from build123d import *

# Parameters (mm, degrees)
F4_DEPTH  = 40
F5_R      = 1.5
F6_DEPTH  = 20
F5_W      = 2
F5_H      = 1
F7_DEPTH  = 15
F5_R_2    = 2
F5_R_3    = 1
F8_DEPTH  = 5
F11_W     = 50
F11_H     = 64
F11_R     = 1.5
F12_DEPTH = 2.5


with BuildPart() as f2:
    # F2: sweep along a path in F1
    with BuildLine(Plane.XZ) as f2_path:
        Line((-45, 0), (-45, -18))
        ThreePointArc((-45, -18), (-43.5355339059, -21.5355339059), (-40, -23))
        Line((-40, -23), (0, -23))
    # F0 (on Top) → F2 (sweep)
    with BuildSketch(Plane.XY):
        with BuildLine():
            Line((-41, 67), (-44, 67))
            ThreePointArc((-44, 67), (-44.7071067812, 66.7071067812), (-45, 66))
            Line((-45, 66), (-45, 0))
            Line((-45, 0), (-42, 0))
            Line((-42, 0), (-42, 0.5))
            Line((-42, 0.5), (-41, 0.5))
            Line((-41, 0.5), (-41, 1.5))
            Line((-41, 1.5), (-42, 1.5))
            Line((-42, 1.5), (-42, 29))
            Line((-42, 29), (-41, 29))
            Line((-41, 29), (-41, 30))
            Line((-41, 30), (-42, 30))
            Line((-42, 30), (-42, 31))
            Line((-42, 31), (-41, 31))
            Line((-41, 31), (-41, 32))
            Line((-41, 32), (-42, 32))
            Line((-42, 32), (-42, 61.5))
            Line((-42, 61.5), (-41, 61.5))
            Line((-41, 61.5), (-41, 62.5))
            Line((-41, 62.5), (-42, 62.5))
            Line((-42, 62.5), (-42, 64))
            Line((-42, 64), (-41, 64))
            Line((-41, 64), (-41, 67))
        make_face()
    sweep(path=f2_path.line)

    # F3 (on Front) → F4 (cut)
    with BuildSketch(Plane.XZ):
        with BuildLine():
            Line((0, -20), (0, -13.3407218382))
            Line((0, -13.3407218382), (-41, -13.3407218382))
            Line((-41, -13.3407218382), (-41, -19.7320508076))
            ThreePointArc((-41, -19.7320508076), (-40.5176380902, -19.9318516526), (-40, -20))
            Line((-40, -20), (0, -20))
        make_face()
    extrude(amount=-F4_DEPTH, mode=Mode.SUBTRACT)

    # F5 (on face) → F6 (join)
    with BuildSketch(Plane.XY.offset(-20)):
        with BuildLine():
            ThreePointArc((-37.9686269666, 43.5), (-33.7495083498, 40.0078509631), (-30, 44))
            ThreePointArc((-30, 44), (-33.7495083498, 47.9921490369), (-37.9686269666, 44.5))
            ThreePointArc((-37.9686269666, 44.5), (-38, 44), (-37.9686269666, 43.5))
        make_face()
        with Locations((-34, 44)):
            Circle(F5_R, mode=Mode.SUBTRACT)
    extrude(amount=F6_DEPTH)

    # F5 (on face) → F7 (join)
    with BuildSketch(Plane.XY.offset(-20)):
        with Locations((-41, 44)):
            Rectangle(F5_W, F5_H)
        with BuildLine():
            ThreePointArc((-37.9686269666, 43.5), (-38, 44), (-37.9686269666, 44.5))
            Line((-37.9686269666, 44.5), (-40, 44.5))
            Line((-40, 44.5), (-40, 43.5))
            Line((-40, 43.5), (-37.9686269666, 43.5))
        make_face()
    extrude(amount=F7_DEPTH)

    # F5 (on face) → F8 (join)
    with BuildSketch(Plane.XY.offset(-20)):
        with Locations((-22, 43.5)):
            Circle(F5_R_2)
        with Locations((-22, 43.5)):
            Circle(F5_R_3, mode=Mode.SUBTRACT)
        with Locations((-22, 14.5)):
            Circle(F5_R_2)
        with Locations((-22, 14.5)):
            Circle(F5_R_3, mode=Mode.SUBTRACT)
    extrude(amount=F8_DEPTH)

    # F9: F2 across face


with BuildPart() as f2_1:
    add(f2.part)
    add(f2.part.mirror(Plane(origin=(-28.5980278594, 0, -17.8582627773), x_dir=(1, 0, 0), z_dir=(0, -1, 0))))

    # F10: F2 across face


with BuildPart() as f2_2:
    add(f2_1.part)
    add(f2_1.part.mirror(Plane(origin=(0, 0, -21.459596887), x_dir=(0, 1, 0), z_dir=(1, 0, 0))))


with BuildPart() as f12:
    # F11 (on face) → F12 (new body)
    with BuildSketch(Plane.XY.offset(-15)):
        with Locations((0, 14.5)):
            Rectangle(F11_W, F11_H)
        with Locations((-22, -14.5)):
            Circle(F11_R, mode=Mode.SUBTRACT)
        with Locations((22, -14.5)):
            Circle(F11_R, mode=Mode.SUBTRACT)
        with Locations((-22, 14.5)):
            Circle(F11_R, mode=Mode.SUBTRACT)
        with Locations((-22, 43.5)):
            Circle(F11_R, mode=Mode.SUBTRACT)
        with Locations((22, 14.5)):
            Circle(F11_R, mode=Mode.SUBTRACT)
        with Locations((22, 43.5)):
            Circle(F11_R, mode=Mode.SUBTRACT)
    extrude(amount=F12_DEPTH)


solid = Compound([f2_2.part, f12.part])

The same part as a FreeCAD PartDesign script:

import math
import FreeCAD as App
import Part
import Sketcher

V = App.Vector

doc = App.newDocument("Part")
body = doc.addObject("PartDesign::Body", "Body")

# Sketch on XY plane
sketch1 = body.newObject("Sketcher::SketchObject", "Sketch")
sketch1.AttachmentSupport = (doc.getObject("XY_Plane"), [""])
sketch1.MapMode = "FlatFace"
sketch1.addGeometry([
    Part.LineSegment(V(-41, 67, 0), V(-44, 67, 0)),  # 0
    Part.ArcOfCircle(Part.Circle(V(-44, 66, 0), V(0, 0, 1), 1), math.radians(90), math.radians(180)),  # 1
    Part.LineSegment(V(-45, 66, 0), V(-45, 0, 0)),  # 2
    Part.LineSegment(V(-45, 0, 0), V(-42, 0, 0)),  # 3
    Part.LineSegment(V(-42, 0, 0), V(-42, 0.5, 0)),  # 4
    Part.LineSegment(V(-42, 0.5, 0), V(-41, 0.5, 0)),  # 5
    Part.LineSegment(V(-41, 0.5, 0), V(-41, 1.5, 0)),  # 6
    Part.LineSegment(V(-41, 1.5, 0), V(-42, 1.5, 0)),  # 7
    Part.LineSegment(V(-42, 1.5, 0), V(-42, 29, 0)),  # 8
    Part.LineSegment(V(-42, 29, 0), V(-41, 29, 0)),  # 9
    Part.LineSegment(V(-41, 29, 0), V(-41, 30, 0)),  # 10
    Part.LineSegment(V(-41, 30, 0), V(-42, 30, 0)),  # 11
    Part.LineSegment(V(-42, 30, 0), V(-42, 31, 0)),  # 12
    Part.LineSegment(V(-42, 31, 0), V(-41, 31, 0)),  # 13
    Part.LineSegment(V(-41, 31, 0), V(-41, 32, 0)),  # 14
    Part.LineSegment(V(-41, 32, 0), V(-42, 32, 0)),  # 15
    Part.LineSegment(V(-42, 32, 0), V(-42, 61.5, 0)),  # 16
    Part.LineSegment(V(-42, 61.5, 0), V(-41, 61.5, 0)),  # 17
    Part.LineSegment(V(-41, 61.5, 0), V(-41, 62.5, 0)),  # 18
    Part.LineSegment(V(-41, 62.5, 0), V(-42, 62.5, 0)),  # 19
    Part.LineSegment(V(-42, 62.5, 0), V(-42, 64, 0)),  # 20
    Part.LineSegment(V(-42, 64, 0), V(-41, 64, 0)),  # 21
    Part.LineSegment(V(-41, 64, 0), V(-41, 67, 0)),  # 22
], False)
sketch1.addConstraint([
    Sketcher.Constraint("Tangent", 0, 2, 1, 1),
    Sketcher.Constraint("Tangent", 1, 2, 2, 1),
    Sketcher.Constraint("Coincident", 2, 2, 3, 1),
    Sketcher.Constraint("Coincident", 3, 2, 4, 1),
    Sketcher.Constraint("Coincident", 4, 2, 5, 1),
    Sketcher.Constraint("Coincident", 5, 2, 6, 1),
    Sketcher.Constraint("Coincident", 6, 2, 7, 1),
    Sketcher.Constraint("Coincident", 7, 2, 8, 1),
    Sketcher.Constraint("Coincident", 8, 2, 9, 1),
    Sketcher.Constraint("Coincident", 9, 2, 10, 1),
    Sketcher.Constraint("Coincident", 10, 2, 11, 1),
    Sketcher.Constraint("Coincident", 11, 2, 12, 1),
    Sketcher.Constraint("Coincident", 12, 2, 13, 1),
    Sketcher.Constraint("Coincident", 13, 2, 14, 1),
    Sketcher.Constraint("Coincident", 14, 2, 15, 1),
    Sketcher.Constraint("Coincident", 15, 2, 16, 1),
    Sketcher.Constraint("Coincident", 16, 2, 17, 1),
    Sketcher.Constraint("Coincident", 17, 2, 18, 1),
    Sketcher.Constraint("Coincident", 18, 2, 19, 1),
    Sketcher.Constraint("Coincident", 19, 2, 20, 1),
    Sketcher.Constraint("Coincident", 20, 2, 21, 1),
    Sketcher.Constraint("Coincident", 21, 2, 22, 1),
    Sketcher.Constraint("Coincident", 22, 2, 0, 1),
    Sketcher.Constraint("Horizontal", 0),
    Sketcher.Constraint("Vertical", 2),
    Sketcher.Constraint("Horizontal", 3),
    Sketcher.Constraint("Vertical", 4),
    Sketcher.Constraint("Horizontal", 5),
    Sketcher.Constraint("Vertical", 6),
    Sketcher.Constraint("Horizontal", 7),
    Sketcher.Constraint("Vertical", 8),
    Sketcher.Constraint("Horizontal", 9),
    Sketcher.Constraint("Vertical", 10),
    Sketcher.Constraint("Horizontal", 11),
    Sketcher.Constraint("Vertical", 12),
    Sketcher.Constraint("Horizontal", 13),
    Sketcher.Constraint("Vertical", 14),
    Sketcher.Constraint("Horizontal", 15),
    Sketcher.Constraint("Vertical", 16),
    Sketcher.Constraint("Horizontal", 17),
    Sketcher.Constraint("Vertical", 18),
    Sketcher.Constraint("Horizontal", 19),
    Sketcher.Constraint("Vertical", 20),
    Sketcher.Constraint("Horizontal", 21),
    Sketcher.Constraint("Vertical", 22),
    Sketcher.Constraint("PointOnObject", 2, 2, -1),
    Sketcher.Constraint("Vertical", 4, 2, 7, 2),
    Sketcher.Constraint("Vertical", 6, 2, 9, 2),
    Sketcher.Constraint("Vertical", 8, 2, 11, 2),
    Sketcher.Constraint("Vertical", 10, 2, 13, 2),
    Sketcher.Constraint("Vertical", 12, 2, 15, 2),
    Sketcher.Constraint("Vertical", 14, 2, 17, 2),
    Sketcher.Constraint("Vertical", 16, 2, 19, 2),
    Sketcher.Constraint("Vertical", 18, 2, 21, 2),
    Sketcher.Constraint("Equal", 0, 3),
    Sketcher.Constraint("Equal", 21, 6),
    Sketcher.Constraint("Equal", 6, 10),
    Sketcher.Constraint("Equal", 10, 12),
    Sketcher.Constraint("Equal", 12, 14),
    Sketcher.Constraint("Equal", 14, 18),
    Sketcher.Constraint("Equal", 3, 22),
    Sketcher.Constraint("Radius", 1, 1.0),
    Sketcher.Constraint("DistanceX", 0, 2, 0, 1, 3.0),
    Sketcher.Constraint("DistanceY", 2, 2, 2, 1, 66.0),
    Sketcher.Constraint("DistanceY", 4, 1, 4, 2, 0.5),
    Sketcher.Constraint("DistanceY", 8, 1, 8, 2, 27.5),
    Sketcher.Constraint("DistanceY", 16, 1, 16, 2, 29.5),
    Sketcher.Constraint("DistanceX", 1, 3, -1, 1, 44.0),
])

# Sketch on XZ plane
sketch2 = body.newObject("Sketcher::SketchObject", "Sketch001")
sketch2.AttachmentSupport = (doc.getObject("XZ_Plane"), [""])
sketch2.MapMode = "FlatFace"
sketch2.addGeometry([
    Part.LineSegment(V(-45, 0, 0), V(-45, -18, 0)),
    Part.ArcOfCircle(Part.Circle(V(-40, -18, 0), V(0, 0, 1), 5), math.radians(180), math.radians(270)),
    Part.LineSegment(V(-40, -23, 0), V(0, -23, 0)),
], False)
sketch2.addConstraint([
    Sketcher.Constraint("Tangent", 0, 2, 1, 1),
    Sketcher.Constraint("Tangent", 1, 2, 2, 1),
    Sketcher.Constraint("Vertical", 0),
    Sketcher.Constraint("Horizontal", 2),
    Sketcher.Constraint("PointOnObject", 0, 1, -1),
    Sketcher.Constraint("PointOnObject", 2, 2, -2),
    Sketcher.Constraint("Radius", 1, 5.0),
    Sketcher.Constraint("DistanceX", 2, 1, 2, 2, 40.0),
    Sketcher.Constraint("DistanceY", 0, 2, 0, 1, 18.0),
])
doc.recompute()

additivepipe = body.newObject("PartDesign::AdditivePipe", "AdditivePipe")
additivepipe.Profile = sketch1
additivepipe.Spine = (sketch2, ["Edge1", "Edge2", "Edge3"])

# Sketch on XZ plane
sketch3 = body.newObject("Sketcher::SketchObject", "Sketch002")
sketch3.AttachmentSupport = (doc.getObject("XZ_Plane"), [""])
sketch3.MapMode = "FlatFace"
sketch3.addGeometry([
    Part.LineSegment(V(0, -20, 0), V(0, -13.3, 0)),  # 0
    Part.LineSegment(V(0, -13.3, 0), V(-41, -13.3, 0)),  # 1
    Part.LineSegment(V(-41, -13.3, 0), V(-41, -19.7, 0)),  # 2
    Part.ArcOfCircle(Part.Circle(V(-40, -18, 0), V(0, 0, 1), 2), math.radians(-120), math.radians(-90)),  # 3
    Part.LineSegment(V(-40, -20, 0), V(0, -20, 0)),  # 4
], False)
sketch3.addConstraint([
    Sketcher.Constraint("Coincident", 0, 2, 1, 1),
    Sketcher.Constraint("Coincident", 1, 2, 2, 1),
    Sketcher.Constraint("Coincident", 2, 2, 3, 1),
    Sketcher.Constraint("Tangent", 3, 2, 4, 1),
    Sketcher.Constraint("Coincident", 4, 2, 0, 1),
    Sketcher.Constraint("Vertical", 0),
    Sketcher.Constraint("Horizontal", 1),
    Sketcher.Constraint("Vertical", 2),
    Sketcher.Constraint("Horizontal", 4),
    Sketcher.Constraint("PointOnObject", 0, 2, -2),
    Sketcher.Constraint("Radius", 3, 2.0),
    Sketcher.Constraint("DistanceX", 1, 2, 1, 1, 41.0),
    Sketcher.Constraint("DistanceX", 4, 1, 4, 2, 40.0),
    Sketcher.Constraint("DistanceY", 3, 3, -1, 1, 18.0),
    Sketcher.Constraint("DistanceY", 0, 1, 0, 2, 6.659278),
])
pocket1 = body.newObject("PartDesign::Pocket", "Pocket")
pocket1.Profile = sketch3
pocket1.Length = 40

# Sketch on XY plane
sketch4 = body.newObject("Sketcher::SketchObject", "Sketch003")
sketch4.AttachmentSupport = (doc.getObject("XY_Plane"), [""])
sketch4.MapMode = "FlatFace"
sketch4.AttachmentOffset = App.Placement(V(0, 0, -20), App.Rotation())
sketch4.addGeometry([
    Part.ArcOfCircle(Part.Circle(V(-34, 44, 0), V(0, 0, 1), 4), math.radians(-173), math.radians(0)),
    Part.ArcOfCircle(Part.Circle(V(-34, 44, 0), V(0, 0, 1), 4), math.radians(0), math.radians(173)),
    Part.ArcOfCircle(Part.Circle(V(-34, 44, 0), V(0, 0, 1), 4), math.radians(172.82), math.radians(187.18)),
    Part.Circle(V(-34, 44, 0), V(0, 0, 1), 1.5),
], False)
sketch4.addConstraint([
    Sketcher.Constraint("Tangent", 0, 2, 1, 1),
    Sketcher.Constraint("Tangent", 1, 2, 2, 1),
    Sketcher.Constraint("Tangent", 2, 2, 0, 1),
    Sketcher.Constraint("Coincident", 3, 3, 0, 3),
    Sketcher.Constraint("Horizontal", 3, 3, 0, 2),
    Sketcher.Constraint("Vertical", 1, 2, 2, 2),
    Sketcher.Constraint("Diameter", 3, 3.0),
    Sketcher.Constraint("Radius", 0, 4.0),
    Sketcher.Constraint("DistanceX", 0, 3, -1, 1, 34.0),
    Sketcher.Constraint("DistanceY", -1, 1, 0, 3, 44.0),
    Sketcher.Constraint("DistanceY", 2, 2, 1, 2, 1.0),
])
pad1 = body.newObject("PartDesign::Pad", "Pad")
pad1.Profile = sketch4
pad1.Length = 20

# Sketch on XY plane
sketch5 = body.newObject("Sketcher::SketchObject", "Sketch004")
sketch5.AttachmentSupport = (doc.getObject("XY_Plane"), [""])
sketch5.MapMode = "FlatFace"
sketch5.AttachmentOffset = App.Placement(V(0, 0, -20), App.Rotation())
sketch5.addGeometry([
    Part.LineSegment(V(-42, 44.5, 0), V(-42, 43.5, 0)),
    Part.LineSegment(V(-42, 43.5, 0), V(-38, 43.5, 0)),
    Part.ArcOfCircle(Part.Circle(V(-34, 44, 0), V(0, 0, 1), 4), math.radians(172.82), math.radians(187.18)),
    Part.LineSegment(V(-38, 44.5, 0), V(-42, 44.5, 0)),
], False)
sketch5.addConstraint([
    Sketcher.Constraint("Coincident", 0, 2, 1, 1),
    Sketcher.Constraint("Coincident", 1, 2, 2, 2),
    Sketcher.Constraint("Coincident", 2, 1, 3, 1),
    Sketcher.Constraint("Coincident", 3, 2, 0, 1),
    Sketcher.Constraint("Vertical", 0),
    Sketcher.Constraint("Horizontal", 1),
    Sketcher.Constraint("Horizontal", 3),
    Sketcher.Constraint("Vertical", 1, 2, 2, 1),
    Sketcher.Constraint("Radius", 2, 4.0),
    Sketcher.Constraint("DistanceY", 0, 2, 0, 1, 1.0),
    Sketcher.Constraint("DistanceX", 2, 3, -1, 1, 34.0),
    Sketcher.Constraint("DistanceY", -1, 1, 2, 3, 44.0),
    Sketcher.Constraint("DistanceX", 0, 2, -1, 1, 42.0),
])
pad2 = body.newObject("PartDesign::Pad", "Pad001")
pad2.Profile = sketch5
pad2.Length = 15

# Sketch on XY plane
sketch6 = body.newObject("Sketcher::SketchObject", "Sketch005")
sketch6.AttachmentSupport = (doc.getObject("XY_Plane"), [""])
sketch6.MapMode = "FlatFace"
sketch6.AttachmentOffset = App.Placement(V(0, 0, -20), App.Rotation())
sketch6.addGeometry([
    Part.Circle(V(-22, 43.5, 0), V(0, 0, 1), 2),
    Part.Circle(V(-22, 43.5, 0), V(0, 0, 1), 1),
    Part.Circle(V(-22, 14.5, 0), V(0, 0, 1), 2),
    Part.Circle(V(-22, 14.5, 0), V(0, 0, 1), 1),
], False)
sketch6.addConstraint([
    Sketcher.Constraint("Coincident", 1, 3, 0, 3),
    Sketcher.Constraint("Coincident", 3, 3, 2, 3),
    Sketcher.Constraint("Equal", 0, 2),
    Sketcher.Constraint("Equal", 1, 3),
    Sketcher.Constraint("Vertical", 1, 3, 2, 3),
    Sketcher.Constraint("Diameter", 0, 4.0),
    Sketcher.Constraint("Diameter", 1, 2.0),
    Sketcher.Constraint("DistanceX", 0, 3, -1, 1, 22.0),
    Sketcher.Constraint("DistanceY", 2, 3, 0, 3, 29.0),
    Sketcher.Constraint("DistanceY", -1, 1, 0, 3, 43.5),
])
pad3 = body.newObject("PartDesign::Pad", "Pad002")
pad3.Profile = sketch6
pad3.Length = 5
body2 = doc.addObject("PartDesign::Body", "Body001")
doc.recompute()

body2.BaseFeature = body
doc.recompute()

mirroring = doc.addObject("Part::Mirroring", "Mirroring")
mirroring.Source = body
mirroring.Base = V(-28.598028, 0, -17.858263)
mirroring.Normal = V(0, -1, 0)
body3 = doc.addObject("PartDesign::Body", "Body002")
body3.BaseFeature = mirroring
boolean = body2.newObject("PartDesign::Boolean", "Boolean")
boolean.Type = "Fuse"
boolean.addObjects([body3])
doc.recompute()
body4 = doc.addObject("PartDesign::Body", "Body003")
doc.recompute()

body4.BaseFeature = body2
doc.recompute()

mirroring2 = doc.addObject("Part::Mirroring", "Mirroring001")
mirroring2.Source = body2
mirroring2.Base = V(0, 0, -21.459597)
mirroring2.Normal = V(1, 0, 0)
body5 = doc.addObject("PartDesign::Body", "Body004")
body5.BaseFeature = mirroring2
boolean2 = body4.newObject("PartDesign::Boolean", "Boolean001")
boolean2.Type = "Fuse"
boolean2.addObjects([body5])
doc.recompute()
body6 = doc.addObject("PartDesign::Body", "Body005")

# Sketch on XY plane
sketch7 = body6.newObject("Sketcher::SketchObject", "Sketch006")
sketch7.AttachmentSupport = (doc.getObject("XY_Plane005"), [""])
sketch7.MapMode = "FlatFace"
sketch7.AttachmentOffset = App.Placement(V(0, 0, -15), App.Rotation())
sketch7.addGeometry([
    Part.LineSegment(V(-25, 46.5, 0), V(-25, -17.5, 0)),  # 0
    Part.LineSegment(V(-25, -17.5, 0), V(25, -17.5, 0)),  # 1
    Part.LineSegment(V(25, -17.5, 0), V(25, 46.5, 0)),  # 2
    Part.LineSegment(V(25, 46.5, 0), V(-25, 46.5, 0)),  # 3
    Part.Circle(V(-22, -14.5, 0), V(0, 0, 1), 1.5),  # 4
    Part.Circle(V(22, -14.5, 0), V(0, 0, 1), 1.5),  # 5
    Part.Circle(V(-22, 14.5, 0), V(0, 0, 1), 1.5),  # 6
    Part.Circle(V(-22, 43.5, 0), V(0, 0, 1), 1.5),  # 7
    Part.Circle(V(22, 14.5, 0), V(0, 0, 1), 1.5),  # 8
    Part.Circle(V(22, 43.5, 0), V(0, 0, 1), 1.5),  # 9
], False)
sketch7.addConstraint([
    Sketcher.Constraint("Coincident", 0, 2, 1, 1),
    Sketcher.Constraint("Coincident", 1, 2, 2, 1),
    Sketcher.Constraint("Coincident", 2, 2, 3, 1),
    Sketcher.Constraint("Coincident", 3, 2, 0, 1),
    Sketcher.Constraint("Vertical", 0),
    Sketcher.Constraint("Horizontal", 1),
    Sketcher.Constraint("Vertical", 2),
    Sketcher.Constraint("Horizontal", 3),
    Sketcher.Constraint("Equal", 4, 5),
    Sketcher.Constraint("Equal", 5, 6),
    Sketcher.Constraint("Equal", 6, 7),
    Sketcher.Constraint("Equal", 7, 8),
    Sketcher.Constraint("Equal", 8, 9),
    Sketcher.Constraint("Symmetric", 5, 3, 6, 3, -1, 1),
    Sketcher.Constraint("Symmetric", 4, 3, 8, 3, -1, 1),
    Sketcher.Constraint("Symmetric", 4, 3, 5, 3, -2),
    Sketcher.Constraint("Symmetric", 7, 3, 9, 3, -2),
    Sketcher.Constraint("Vertical", 6, 3, 7, 3),
    Sketcher.Constraint("Diameter", 4, 3.0),
    Sketcher.Constraint("DistanceX", 1, 1, 1, 2, 50.0),
    Sketcher.Constraint("DistanceY", 0, 2, 0, 1, 64.0),
    Sketcher.Constraint("DistanceX", 4, 3, -1, 1, 22.0),
    Sketcher.Constraint("DistanceX", 0, 2, -1, 1, 25.0),
    Sketcher.Constraint("DistanceY", 4, 3, 6, 3, 29.0),
    Sketcher.Constraint("DistanceY", 6, 3, 7, 3, 29.0),
    Sketcher.Constraint("DistanceY", 0, 2, 4, 3, 3.0),
])
pad4 = body6.newObject("PartDesign::Pad", "Pad003")
pad4.Profile = sketch7
pad4.Length = 2.5
mirroring.Visibility = False
mirroring2.Visibility = False

doc.recompute()
